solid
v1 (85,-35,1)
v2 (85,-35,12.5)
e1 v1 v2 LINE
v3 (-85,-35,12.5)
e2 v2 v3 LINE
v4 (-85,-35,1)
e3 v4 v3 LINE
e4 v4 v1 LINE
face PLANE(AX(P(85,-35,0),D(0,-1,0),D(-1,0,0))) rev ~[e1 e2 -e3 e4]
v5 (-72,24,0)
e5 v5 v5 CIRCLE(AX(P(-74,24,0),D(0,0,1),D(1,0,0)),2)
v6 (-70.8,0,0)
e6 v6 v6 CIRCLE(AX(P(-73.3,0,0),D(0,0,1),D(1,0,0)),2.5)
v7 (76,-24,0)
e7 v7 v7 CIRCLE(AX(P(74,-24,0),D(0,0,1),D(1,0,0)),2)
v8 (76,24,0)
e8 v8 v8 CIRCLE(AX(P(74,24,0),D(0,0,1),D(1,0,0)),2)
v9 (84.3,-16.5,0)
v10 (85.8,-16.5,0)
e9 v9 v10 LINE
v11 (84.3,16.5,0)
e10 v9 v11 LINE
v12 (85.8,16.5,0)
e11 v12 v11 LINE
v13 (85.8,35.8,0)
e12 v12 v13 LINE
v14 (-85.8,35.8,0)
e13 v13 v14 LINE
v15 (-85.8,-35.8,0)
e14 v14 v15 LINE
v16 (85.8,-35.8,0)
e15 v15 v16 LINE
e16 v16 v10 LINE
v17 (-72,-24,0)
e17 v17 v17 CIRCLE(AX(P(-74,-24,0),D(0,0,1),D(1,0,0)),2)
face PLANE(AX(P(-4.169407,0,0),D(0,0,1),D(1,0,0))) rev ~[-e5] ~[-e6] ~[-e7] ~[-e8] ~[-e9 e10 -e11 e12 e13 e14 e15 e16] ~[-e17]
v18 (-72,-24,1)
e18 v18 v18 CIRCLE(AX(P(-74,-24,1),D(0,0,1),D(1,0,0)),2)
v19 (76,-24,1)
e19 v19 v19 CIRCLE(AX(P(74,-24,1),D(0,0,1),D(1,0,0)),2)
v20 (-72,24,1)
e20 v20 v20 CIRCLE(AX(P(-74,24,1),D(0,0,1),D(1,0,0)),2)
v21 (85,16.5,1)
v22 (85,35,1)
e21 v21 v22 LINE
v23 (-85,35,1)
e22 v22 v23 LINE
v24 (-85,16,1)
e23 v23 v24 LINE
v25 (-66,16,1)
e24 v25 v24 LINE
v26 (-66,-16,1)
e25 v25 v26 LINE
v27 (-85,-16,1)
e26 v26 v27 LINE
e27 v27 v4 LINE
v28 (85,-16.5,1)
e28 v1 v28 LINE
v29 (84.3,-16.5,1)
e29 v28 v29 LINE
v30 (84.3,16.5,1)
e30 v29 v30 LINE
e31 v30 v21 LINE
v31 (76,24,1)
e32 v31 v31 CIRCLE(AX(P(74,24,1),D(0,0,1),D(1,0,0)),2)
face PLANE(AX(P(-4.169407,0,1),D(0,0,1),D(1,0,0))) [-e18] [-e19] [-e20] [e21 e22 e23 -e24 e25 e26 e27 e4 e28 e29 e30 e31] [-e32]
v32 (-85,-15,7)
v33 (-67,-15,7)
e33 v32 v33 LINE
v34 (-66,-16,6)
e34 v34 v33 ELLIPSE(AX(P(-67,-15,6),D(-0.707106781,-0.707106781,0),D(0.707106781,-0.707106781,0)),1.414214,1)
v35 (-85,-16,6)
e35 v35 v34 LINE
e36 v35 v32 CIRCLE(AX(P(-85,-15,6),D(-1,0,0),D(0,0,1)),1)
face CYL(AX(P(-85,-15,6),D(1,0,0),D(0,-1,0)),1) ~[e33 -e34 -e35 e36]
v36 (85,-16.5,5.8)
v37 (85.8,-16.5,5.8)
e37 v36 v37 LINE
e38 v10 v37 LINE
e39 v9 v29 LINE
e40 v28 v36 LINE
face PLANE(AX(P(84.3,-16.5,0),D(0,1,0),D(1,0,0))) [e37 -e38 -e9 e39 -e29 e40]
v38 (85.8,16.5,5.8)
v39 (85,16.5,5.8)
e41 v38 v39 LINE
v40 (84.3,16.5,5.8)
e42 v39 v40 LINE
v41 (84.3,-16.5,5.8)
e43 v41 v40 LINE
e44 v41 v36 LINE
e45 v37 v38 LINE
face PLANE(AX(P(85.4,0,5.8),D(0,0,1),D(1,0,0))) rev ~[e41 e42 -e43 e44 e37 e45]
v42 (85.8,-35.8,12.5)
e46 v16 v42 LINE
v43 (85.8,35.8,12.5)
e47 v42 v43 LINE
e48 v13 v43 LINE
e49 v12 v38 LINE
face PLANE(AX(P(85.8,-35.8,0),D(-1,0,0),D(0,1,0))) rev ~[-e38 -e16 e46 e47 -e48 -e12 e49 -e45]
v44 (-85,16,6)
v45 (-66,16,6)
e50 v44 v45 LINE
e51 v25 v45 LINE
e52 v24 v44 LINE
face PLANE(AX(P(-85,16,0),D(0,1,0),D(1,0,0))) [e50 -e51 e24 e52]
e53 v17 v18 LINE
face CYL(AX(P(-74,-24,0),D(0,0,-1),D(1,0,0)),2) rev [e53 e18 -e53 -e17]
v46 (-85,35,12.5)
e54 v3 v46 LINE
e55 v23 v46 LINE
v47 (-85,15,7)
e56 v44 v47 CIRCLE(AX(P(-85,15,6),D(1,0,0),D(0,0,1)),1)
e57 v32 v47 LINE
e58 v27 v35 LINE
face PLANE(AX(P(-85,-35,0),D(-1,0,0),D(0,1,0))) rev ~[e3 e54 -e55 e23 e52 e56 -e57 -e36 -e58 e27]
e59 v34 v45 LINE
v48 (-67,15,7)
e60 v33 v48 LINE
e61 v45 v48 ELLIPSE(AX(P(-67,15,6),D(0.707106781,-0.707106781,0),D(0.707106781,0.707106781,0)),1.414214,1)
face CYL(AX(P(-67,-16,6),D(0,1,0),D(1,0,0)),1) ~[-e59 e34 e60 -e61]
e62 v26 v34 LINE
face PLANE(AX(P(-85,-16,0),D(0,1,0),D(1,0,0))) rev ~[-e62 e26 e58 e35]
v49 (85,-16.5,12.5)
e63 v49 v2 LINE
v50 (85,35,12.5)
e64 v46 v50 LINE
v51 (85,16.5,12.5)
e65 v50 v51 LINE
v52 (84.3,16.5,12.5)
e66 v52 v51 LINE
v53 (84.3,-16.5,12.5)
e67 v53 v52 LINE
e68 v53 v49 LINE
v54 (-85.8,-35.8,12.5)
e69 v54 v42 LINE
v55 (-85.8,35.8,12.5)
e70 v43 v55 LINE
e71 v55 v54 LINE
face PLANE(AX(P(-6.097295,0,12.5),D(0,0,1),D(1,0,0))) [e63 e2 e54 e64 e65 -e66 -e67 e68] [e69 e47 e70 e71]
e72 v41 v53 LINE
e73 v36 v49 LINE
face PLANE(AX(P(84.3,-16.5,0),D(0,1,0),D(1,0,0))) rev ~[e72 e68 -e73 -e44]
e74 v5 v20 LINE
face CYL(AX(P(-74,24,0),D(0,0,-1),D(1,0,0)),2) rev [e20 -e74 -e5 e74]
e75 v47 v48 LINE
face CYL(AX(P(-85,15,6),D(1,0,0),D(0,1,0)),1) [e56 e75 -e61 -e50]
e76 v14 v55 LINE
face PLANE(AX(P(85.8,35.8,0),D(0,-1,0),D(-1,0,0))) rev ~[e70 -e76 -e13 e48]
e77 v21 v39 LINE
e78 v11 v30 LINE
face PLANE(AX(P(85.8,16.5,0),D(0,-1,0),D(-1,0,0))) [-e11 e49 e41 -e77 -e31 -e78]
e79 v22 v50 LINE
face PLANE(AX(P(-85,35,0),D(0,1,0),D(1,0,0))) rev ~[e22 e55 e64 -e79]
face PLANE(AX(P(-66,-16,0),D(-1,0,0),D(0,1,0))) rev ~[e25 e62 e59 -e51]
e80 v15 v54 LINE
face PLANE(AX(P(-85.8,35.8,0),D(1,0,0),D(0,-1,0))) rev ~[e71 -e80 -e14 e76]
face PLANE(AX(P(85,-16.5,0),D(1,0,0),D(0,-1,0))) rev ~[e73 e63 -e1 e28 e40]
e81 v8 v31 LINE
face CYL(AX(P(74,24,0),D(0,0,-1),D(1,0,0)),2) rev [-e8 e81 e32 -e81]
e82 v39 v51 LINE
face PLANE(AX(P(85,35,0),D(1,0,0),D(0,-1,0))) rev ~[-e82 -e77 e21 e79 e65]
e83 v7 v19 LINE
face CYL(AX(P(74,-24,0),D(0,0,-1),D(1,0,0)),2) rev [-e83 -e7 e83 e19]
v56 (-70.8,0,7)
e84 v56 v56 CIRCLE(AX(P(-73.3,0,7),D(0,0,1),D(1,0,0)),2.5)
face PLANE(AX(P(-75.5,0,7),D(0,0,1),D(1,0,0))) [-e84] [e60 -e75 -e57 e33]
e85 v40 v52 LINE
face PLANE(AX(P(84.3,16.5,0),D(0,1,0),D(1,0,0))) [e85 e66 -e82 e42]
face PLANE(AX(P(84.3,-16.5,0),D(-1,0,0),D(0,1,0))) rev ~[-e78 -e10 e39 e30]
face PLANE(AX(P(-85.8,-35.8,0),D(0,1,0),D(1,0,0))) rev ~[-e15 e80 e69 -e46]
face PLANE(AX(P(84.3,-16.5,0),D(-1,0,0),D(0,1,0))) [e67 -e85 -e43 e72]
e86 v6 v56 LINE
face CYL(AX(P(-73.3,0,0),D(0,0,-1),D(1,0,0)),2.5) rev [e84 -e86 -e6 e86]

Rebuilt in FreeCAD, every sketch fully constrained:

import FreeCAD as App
import Part
import Sketcher

V = App.Vector
Q = App.Units.Quantity


def edges_at(feature, points):
    """Names of the edges that pass closest to the given points."""
    edges = feature.Shape.Edges
    near = lambda p: min(range(len(edges)), key=lambda i: edges[i].distToShape(Part.Vertex(*p))[0])
    return sorted({f"Edge{near(p) + 1}" for p in points})

doc = App.newDocument("Part")
body = doc.addObject("PartDesign::Body", "Body")

# Sketch on XY plane
sketch1 = body.newObject("Sketcher::SketchObject", "Sketch")
sketch1.AttachmentSupport = (doc.getObject("XY_Plane"), [""])
sketch1.MapMode = "FlatFace"
sketch1.addGeometry(Part.LineSegment(V(85, 35, 0), V(-85, 35, 0)), False)
sketch1.addGeometry(Part.LineSegment(V(-85, 35, 0), V(-85, -35, 0)), False)
sketch1.addGeometry(Part.LineSegment(V(-85, -35, 0), V(85, -35, 0)), False)
sketch1.addGeometry(Part.LineSegment(V(85, -35, 0), V(85, -16.5, 0)), False)
sketch1.addGeometry(Part.LineSegment(V(85, -16.5, 0), V(84.3, -16.5, 0)), False)
sketch1.addGeometry(Part.LineSegment(V(84.3, -16.5, 0), V(84.3, 16.5, 0)), False)
sketch1.addGeometry(Part.LineSegment(V(84.3, 16.5, 0), V(85, 16.5, 0)), False)
sketch1.addGeometry(Part.LineSegment(V(85, 16.5, 0), V(85, 35, 0)), False)
sketch1.addGeometry(Part.Circle(V(-74, -24, 0), V(0, 0, 1), 2), False)
sketch1.addGeometry(Part.Circle(V(74, -24, 0), V(0, 0, 1), 2), False)
sketch1.addGeometry(Part.Circle(V(-73.3, 0, 0), V(0, 0, 1), 2.5), False)
sketch1.addGeometry(Part.Circle(V(-74, 24, 0), V(0, 0, 1), 2), False)
sketch1.addGeometry(Part.Circle(V(74, 24, 0), V(0, 0, 1), 2), False)
sketch1.addConstraint(Sketcher.Constraint("Coincident", 0, 2, 1, 1))
sketch1.addConstraint(Sketcher.Constraint("Coincident", 1, 2, 2, 1))
sketch1.addConstraint(Sketcher.Constraint("Coincident", 2, 2, 3, 1))
sketch1.addConstraint(Sketcher.Constraint("Coincident", 3, 2, 4, 1))
sketch1.addConstraint(Sketcher.Constraint("Coincident", 4, 2, 5, 1))
sketch1.addConstraint(Sketcher.Constraint("Coincident", 5, 2, 6, 1))
sketch1.addConstraint(Sketcher.Constraint("Coincident", 6, 2, 7, 1))
sketch1.addConstraint(Sketcher.Constraint("Coincident", 7, 2, 0, 1))
sketch1.addConstraint(Sketcher.Constraint("Horizontal", 0))
sketch1.addConstraint(Sketcher.Constraint("Vertical", 1))
sketch1.addConstraint(Sketcher.Constraint("Horizontal", 2))
sketch1.addConstraint(Sketcher.Constraint("Vertical", 3))
sketch1.addConstraint(Sketcher.Constraint("Horizontal", 4))
sketch1.addConstraint(Sketcher.Constraint("Vertical", 5))
sketch1.addConstraint(Sketcher.Constraint("Horizontal", 6))
sketch1.addConstraint(Sketcher.Constraint("Vertical", 7))
sketch1.addConstraint(Sketcher.Constraint("Equal", 8, 9))
sketch1.addConstraint(Sketcher.Constraint("Equal", 9, 11))
sketch1.addConstraint(Sketcher.Constraint("Equal", 11, 12))
sketch1.addConstraint(Sketcher.Constraint("Symmetric", 9, 3, 11, 3, -1, 1))
sketch1.addConstraint(Sketcher.Constraint("Symmetric", 8, 3, 12, 3, -1, 1))
sketch1.addConstraint(Sketcher.Constraint("Symmetric", 0, 2, 2, 2, -1, 1))
sketch1.addConstraint(Sketcher.Constraint("Symmetric", 8, 3, 9, 3, -2))
sketch1.addConstraint(Sketcher.Constraint("Symmetric", 3, 2, 6, 2, -1))
sketch1.addConstraint(Sketcher.Constraint("PointOnObject", 10, 3, -1))
sketch1.addConstraint(Sketcher.Constraint("Diameter", 8, Q("4 mm")))
sketch1.addConstraint(Sketcher.Constraint("Diameter", 10, Q("5 mm")))
sketch1.addConstraint(Sketcher.Constraint("DistanceX", 0, 2, 0, 1, Q("170 mm")))
sketch1.addConstraint(Sketcher.Constraint("DistanceY", 1, 2, 1, 1, Q("70 mm")))
sketch1.addConstraint(Sketcher.Constraint("DistanceY", 5, 1, 5, 2, Q("33 mm")))
sketch1.addConstraint(Sketcher.Constraint("DistanceX", 4, 2, 4, 1, Q("0.7 mm")))
sketch1.addConstraint(Sketcher.Constraint("DistanceX", 8, 3, -1, 1, Q("74 mm")))
sketch1.addConstraint(Sketcher.Constraint("DistanceY", 8, 3, -1, 1, Q("24 mm")))
sketch1.addConstraint(Sketcher.Constraint("DistanceX", 10, 3, -1, 1, Q("73.3 mm")))
pad1 = body.newObject("PartDesign::Pad", "Pad")
pad1.Profile = sketch1
pad1.Length = 1

# Sketch on XY plane
sketch2 = body.newObject("Sketcher::SketchObject", "Sketch001")
sketch2.AttachmentSupport = (doc.getObject("XY_Plane"), [""])
sketch2.MapMode = "FlatFace"
sketch2.addGeometry(Part.LineSegment(V(-85, 16, 0), V(-85, -16, 0)), False)
sketch2.addGeometry(Part.LineSegment(V(-85, -16, 0), V(-66, -16, 0)), False)
sketch2.addGeometry(Part.LineSegment(V(-66, -16, 0), V(-66, 16, 0)), False)
sketch2.addGeometry(Part.LineSegment(V(-66, 16, 0), V(-85, 16, 0)), False)
sketch2.addGeometry(Part.Circle(V(-73.3, 0, 0), V(0, 0, 1), 2.5), False)
sketch2.addConstraint(Sketcher.Constraint("Coincident", 0, 2, 1, 1))
sketch2.addConstraint(Sketcher.Constraint("Coincident", 1, 2, 2, 1))
sketch2.addConstraint(Sketcher.Constraint("Coincident", 2, 2, 3, 1))
sketch2.addConstraint(Sketcher.Constraint("Coincident", 3, 2, 0, 1))
sketch2.addConstraint(Sketcher.Constraint("Vertical", 0))
sketch2.addConstraint(Sketcher.Constraint("Horizontal", 1))
sketch2.addConstraint(Sketcher.Constraint("Vertical", 2))
sketch2.addConstraint(Sketcher.Constraint("Horizontal", 3))
sketch2.addConstraint(Sketcher.Constraint("PointOnObject", 4, 3, -1))
sketch2.addConstraint(Sketcher.Constraint("Diameter", 4, Q("5 mm")))
sketch2.addConstraint(Sketcher.Constraint("DistanceX", 1, 1, 1, 2, Q("19 mm")))
sketch2.addConstraint(Sketcher.Constraint("DistanceY", 0, 2, 0, 1, Q("32 mm")))
sketch2.addConstraint(Sketcher.Constraint("DistanceX", 0, 2, -1, 1, Q("85 mm")))
sketch2.addConstraint(Sketcher.Constraint("DistanceY", 0, 2, -1, 1, Q("16 mm")))
sketch2.addConstraint(Sketcher.Constraint("DistanceX", 4, 3, -1, 1, Q("73.3 mm")))
pad2 = body.newObject("PartDesign::Pad", "Pad001")
pad2.Profile = sketch2
pad2.Length = 7

# Sketch on XY plane
sketch3 = body.newObject("Sketcher::SketchObject", "Sketch002")
sketch3.AttachmentSupport = (doc.getObject("XY_Plane"), [""])
sketch3.MapMode = "FlatFace"
sketch3.addGeometry(Part.LineSegment(V(85.8, 35.8, 0), V(-85.8, 35.8, 0)), False)
sketch3.addGeometry(Part.LineSegment(V(-85.8, 35.8, 0), V(-85.8, -35.8, 0)), False)
sketch3.addGeometry(Part.LineSegment(V(-85.8, -35.8, 0), V(85.8, -35.8, 0)), False)
sketch3.addGeometry(Part.LineSegment(V(85.8, -35.8, 0), V(85.8, 35.8, 0)), False)
sketch3.addGeometry(Part.LineSegment(V(-85, 35, 0), V(85, 35, 0)), False)
sketch3.addGeometry(Part.LineSegment(V(85, 35, 0), V(85, 16.5, 0)), False)
sketch3.addGeometry(Part.LineSegment(V(85, 16.5, 0), V(84.3, 16.5, 0)), False)
sketch3.addGeometry(Part.LineSegment(V(84.3, 16.5, 0), V(84.3, -16.5, 0)), False)
sketch3.addGeometry(Part.LineSegment(V(84.3, -16.5, 0), V(85, -16.5, 0)), False)
sketch3.addGeometry(Part.LineSegment(V(85, -16.5, 0), V(85, -35, 0)), False)
sketch3.addGeometry(Part.LineSegment(V(85, -35, 0), V(-85, -35, 0)), False)
sketch3.addGeometry(Part.LineSegment(V(-85, -35, 0), V(-85, 35, 0)), False)
sketch3.addConstraint(Sketcher.Constraint("Coincident", 0, 2, 1, 1))
sketch3.addConstraint(Sketcher.Constraint("Coincident", 1, 2, 2, 1))
sketch3.addConstraint(Sketcher.Constraint("Coincident", 2, 2, 3, 1))
sketch3.addConstraint(Sketcher.Constraint("Coincident", 3, 2, 0, 1))
sketch3.addConstraint(Sketcher.Constraint("Coincident", 4, 2, 5, 1))
sketch3.addConstraint(Sketcher.Constraint("Coincident", 5, 2, 6, 1))
sketch3.addConstraint(Sketcher.Constraint("Coincident", 6, 2, 7, 1))
sketch3.addConstraint(Sketcher.Constraint("Coincident", 7, 2, 8, 1))
sketch3.addConstraint(Sketcher.Constraint("Coincident", 8, 2, 9, 1))
sketch3.addConstraint(Sketcher.Constraint("Coincident", 9, 2, 10, 1))
sketch3.addConstraint(Sketcher.Constraint("Coincident", 10, 2, 11, 1))
sketch3.addConstraint(Sketcher.Constraint("Coincident", 11, 2, 4, 1))
sketch3.addConstraint(Sketcher.Constraint("Horizontal", 0))
sketch3.addConstraint(Sketcher.Constraint("Vertical", 1))
sketch3.addConstraint(Sketcher.Constraint("Horizontal", 2))
sketch3.addConstraint(Sketcher.Constraint("Vertical", 3))
sketch3.addConstraint(Sketcher.Constraint("Horizontal", 4))
sketch3.addConstraint(Sketcher.Constraint("Vertical", 5))
sketch3.addConstraint(Sketcher.Constraint("Horizontal", 6))
sketch3.addConstraint(Sketcher.Constraint("Vertical", 7))
sketch3.addConstraint(Sketcher.Constraint("Horizontal", 8))
sketch3.addConstraint(Sketcher.Constraint("Vertical", 9))
sketch3.addConstraint(Sketcher.Constraint("Horizontal", 10))
sketch3.addConstraint(Sketcher.Constraint("Vertical", 11))
sketch3.addConstraint(Sketcher.Constraint("Symmetric", 0, 2, 2, 2, -1, 1))
sketch3.addConstraint(Sketcher.Constraint("Symmetric", 4, 2, 10, 2, -1, 1))
sketch3.addConstraint(Sketcher.Constraint("Symmetric", 5, 2, 8, 2, -1))
sketch3.addConstraint(Sketcher.Constraint("DistanceX", 4, 1, 4, 2, Q("170 mm")))
sketch3.addConstraint(Sketcher.Constraint("DistanceY", 7, 2, 7, 1, Q("33 mm")))
sketch3.addConstraint(Sketcher.Constraint("DistanceY", 11, 1, 11, 2, Q("70 mm")))
sketch3.addConstraint(Sketcher.Constraint("DistanceX", 0, 2, 0, 1, Q("171.6 mm")))
sketch3.addConstraint(Sketcher.Constraint("DistanceX", 6, 2, 6, 1, Q("0.7 mm")))
sketch3.addConstraint(Sketcher.Constraint("DistanceY", 1, 2, 1, 1, Q("71.6 mm")))
pad3 = body.newObject("PartDesign::Pad", "Pad002")
pad3.Profile = sketch3
pad3.Length = 12.5

# Sketch on XY plane
sketch4 = body.newObject("Sketcher::SketchObject", "Sketch003")
sketch4.AttachmentSupport = (doc.getObject("XY_Plane"), [""])
sketch4.MapMode = "FlatFace"
sketch4.addGeometry(Part.LineSegment(V(85.8, -16.5, 0), V(85.8, 16.5, 0)), False)
sketch4.addGeometry(Part.LineSegment(V(85.8, 16.5, 0), V(84.3, 16.5, 0)), False)
sketch4.addGeometry(Part.LineSegment(V(84.3, 16.5, 0), V(84.3, -16.5, 0)), False)
sketch4.addGeometry(Part.LineSegment(V(84.3, -16.5, 0), V(85.8, -16.5, 0)), False)
sketch4.addConstraint(Sketcher.Constraint("Coincident", 0, 2, 1, 1))
sketch4.addConstraint(Sketcher.Constraint("Coincident", 1, 2, 2, 1))
sketch4.addConstraint(Sketcher.Constraint("Coincident", 2, 2, 3, 1))
sketch4.addConstraint(Sketcher.Constraint("Coincident", 3, 2, 0, 1))
sketch4.addConstraint(Sketcher.Constraint("Vertical", 0))
sketch4.addConstraint(Sketcher.Constraint("Horizontal", 1))
sketch4.addConstraint(Sketcher.Constraint("Vertical", 2))
sketch4.addConstraint(Sketcher.Constraint("Horizontal", 3))
sketch4.addConstraint(Sketcher.Constraint("DistanceY", 0, 1, 0, 2, Q("33 mm")))
sketch4.addConstraint(Sketcher.Constraint("DistanceX", 1, 2, 1, 1, Q("1.5 mm")))
sketch4.addConstraint(Sketcher.Constraint("DistanceX", -1, 1, 0, 2, Q("85.8 mm")))
sketch4.addConstraint(Sketcher.Constraint("DistanceY", -1, 1, 0, 2, Q("16.5 mm")))
pocket1 = body.newObject("PartDesign::Pocket", "Pocket")
pocket1.Profile = sketch4
pocket1.Length = 5.8
pocket1.Reversed = True
doc.recompute()

fillet = body.newObject("PartDesign::Fillet", "Fillet")
fillet.Base = (pocket1, edges_at(pocket1, [(-75.5, -16, 7), (-75.5, 16, 7), (-66, 0, 7)]))
fillet.Radius = 1

doc.recompute()
